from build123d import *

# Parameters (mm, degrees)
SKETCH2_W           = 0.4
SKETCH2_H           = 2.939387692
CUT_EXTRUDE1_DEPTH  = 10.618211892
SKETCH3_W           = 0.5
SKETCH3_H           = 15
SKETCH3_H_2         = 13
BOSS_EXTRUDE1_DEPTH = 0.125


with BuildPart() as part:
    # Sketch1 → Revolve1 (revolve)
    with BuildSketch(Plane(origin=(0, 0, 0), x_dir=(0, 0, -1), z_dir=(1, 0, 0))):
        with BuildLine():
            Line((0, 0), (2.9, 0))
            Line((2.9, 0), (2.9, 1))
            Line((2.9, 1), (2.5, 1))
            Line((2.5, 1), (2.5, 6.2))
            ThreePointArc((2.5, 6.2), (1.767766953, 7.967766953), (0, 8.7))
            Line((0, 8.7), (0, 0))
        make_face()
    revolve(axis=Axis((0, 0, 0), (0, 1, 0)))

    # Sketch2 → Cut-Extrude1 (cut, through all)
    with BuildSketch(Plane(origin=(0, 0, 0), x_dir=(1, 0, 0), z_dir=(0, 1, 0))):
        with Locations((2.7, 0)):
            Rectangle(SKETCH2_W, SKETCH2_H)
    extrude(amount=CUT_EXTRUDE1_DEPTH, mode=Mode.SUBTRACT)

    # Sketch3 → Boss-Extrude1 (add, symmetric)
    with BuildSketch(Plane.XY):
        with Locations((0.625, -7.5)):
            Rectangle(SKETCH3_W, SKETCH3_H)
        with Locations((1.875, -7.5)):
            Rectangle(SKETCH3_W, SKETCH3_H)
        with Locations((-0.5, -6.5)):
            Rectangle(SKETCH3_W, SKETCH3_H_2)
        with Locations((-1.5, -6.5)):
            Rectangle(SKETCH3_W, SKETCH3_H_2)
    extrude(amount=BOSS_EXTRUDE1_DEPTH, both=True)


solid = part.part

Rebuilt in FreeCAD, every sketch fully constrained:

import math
import FreeCAD as App
import Part
import Sketcher

V = App.Vector

doc = App.newDocument("Part")
body = doc.addObject("PartDesign::Body", "Body")

sketch1 = body.newObject("Sketcher::SketchObject", "Sketch")
sketch1.AttachmentSupport = (doc.getObject("YZ_Plane"), [""])
sketch1.MapMode = "FlatFace"
sketch1.addGeometry([
    Part.LineSegment(V(0, 0, 0), V(0, -2.9, 0)),
    Part.LineSegment(V(0, -2.9, 0), V(1, -2.9, 0)),
    Part.LineSegment(V(1, -2.9, 0), V(1, -2.5, 0)),
    Part.LineSegment(V(1, -2.5, 0), V(6.2, -2.5, 0)),
    Part.ArcOfCircle(Part.Circle(V(6.2, 0, 0), V(0, 0, 1), 2.5), math.radians(-90), math.radians(0)),
    Part.LineSegment(V(8.7, 0, 0), V(0, 0, 0)),
], False)
sketch1.addConstraint([
    Sketcher.Constraint("Coincident", 0, 2, 1, 1),
    Sketcher.Constraint("Coincident", 1, 2, 2, 1),
    Sketcher.Constraint("Coincident", 2, 2, 3, 1),
    Sketcher.Constraint("Tangent", 3, 2, 4, 1),
    Sketcher.Constraint("Coincident", 4, 2, 5, 1),
    Sketcher.Constraint("Coincident", 5, 2, 0, 1),
    Sketcher.Constraint("Vertical", 0),
    Sketcher.Constraint("Horizontal", 1),
    Sketcher.Constraint("Vertical", 2),
    Sketcher.Constraint("Horizontal", 3),
    Sketcher.Constraint("Horizontal", 5),
    Sketcher.Constraint("Coincident", 5, 2, -1, 1),
    Sketcher.Constraint("PointOnObject", 4, 3, -1),
    Sketcher.Constraint("Radius", 4, 2.5),
    Sketcher.Constraint("DistanceX", 1, 1, 1, 2, 1.0),
    Sketcher.Constraint("DistanceX", 3, 1, 3, 2, 5.2),
    Sketcher.Constraint("DistanceY", 0, 2, 0, 1, 2.9),
])
revolution = body.newObject("PartDesign::Revolution", "Revolution")
revolution.Profile = sketch1
revolution.ReferenceAxis = (sketch1, ["H_Axis"])
revolution.Angle = 360

sketch2 = body.newObject("Sketcher::SketchObject", "Sketch001")
sketch2.AttachmentSupport = (doc.getObject("XZ_Plane"), [""])
sketch2.MapMode = "FlatFace"
sketch2.addGeometry([
    Part.LineSegment(V(2.5, -1.47, 0), V(2.5, 1.47, 0)),
    Part.LineSegment(V(2.5, 1.47, 0), V(2.9, 1.47, 0)),
    Part.LineSegment(V(2.9, 1.47, 0), V(2.9, -1.47, 0)),
    Part.LineSegment(V(2.9, -1.47, 0), V(2.5, -1.47, 0)),
], False)
sketch2.addConstraint([
    Sketcher.Constraint("Coincident", 0, 2, 1, 1),
    Sketcher.Constraint("Coincident", 1, 2, 2, 1),
    Sketcher.Constraint("Coincident", 2, 2, 3, 1),
    Sketcher.Constraint("Coincident", 3, 2, 0, 1),
    Sketcher.Constraint("Vertical", 0),
    Sketcher.Constraint("Horizontal", 1),
    Sketcher.Constraint("Vertical", 2),
    Sketcher.Constraint("Horizontal", 3),
    Sketcher.Constraint("DistanceX", 1, 1, 1, 2, 0.4),
    Sketcher.Constraint("DistanceX", -1, 1, 0, 2, 2.5),
    Sketcher.Constraint("DistanceY", 0, 1, 0, 2, 2.939388),
    Sketcher.Constraint("DistanceY", -1, 1, 0, 2, 1.469694),
])
pocket1 = body.newObject("PartDesign::Pocket", "Pocket")
pocket1.Profile = sketch2
pocket1.Type = "ThroughAll"

sketch3 = body.newObject("Sketcher::SketchObject", "Sketch002")
sketch3.AttachmentSupport = (doc.getObject("XY_Plane"), [""])
sketch3.MapMode = "FlatFace"
sketch3.addGeometry([
    Part.LineSegment(V(0.4, 0, 0), V(0.4, -15, 0)),
    Part.LineSegment(V(0.4, -15, 0), V(0.9, -15, 0)),
    Part.LineSegment(V(0.9, -15, 0), V(0.9, 0, 0)),
    Part.LineSegment(V(0.9, 0, 0), V(0.4, 0, 0)),
    Part.LineSegment(V(1.6, 0, 0), V(1.6, -15, 0)),
    Part.LineSegment(V(1.6, -15, 0), V(2.1, -15, 0)),
    Part.LineSegment(V(2.1, -15, 0), V(2.1, 0, 0)),
    Part.LineSegment(V(2.1, 0, 0), V(1.6, 0, 0)),
    Part.LineSegment(V(-0.8, 0, 0), V(-0.8, -13, 0)),
    Part.LineSegment(V(-0.8, -13, 0), V(-0.2, -13, 0)),
    Part.LineSegment(V(-0.2, -13, 0), V(-0.2, 0, 0)),
    Part.LineSegment(V(-0.2, 0, 0), V(-0.8, 0, 0)),
    Part.LineSegment(V(-1.8, 0, 0), V(-1.8, -13, 0)),
    Part.LineSegment(V(-1.8, -13, 0), V(-1.2, -13, 0)),
    Part.LineSegment(V(-1.2, -13, 0), V(-1.2, 0, 0)),
    Part.LineSegment(V(-1.2, 0, 0), V(-1.8, 0, 0)),
], False)
sketch3.addConstraint([
    Sketcher.Constraint("Coincident", 0, 2, 1, 1),
    Sketcher.Constraint("Coincident", 1, 2, 2, 1),
    Sketcher.Constraint("Coincident", 2, 2, 3, 1),
    Sketcher.Constraint("Coincident", 3, 2, 0, 1),
    Sketcher.Constraint("Coincident", 4, 2, 5, 1),
    Sketcher.Constraint("Coincident", 5, 2, 6, 1),
    Sketcher.Constraint("Coincident", 6, 2, 7, 1),
    Sketcher.Constraint("Coincident", 7, 2, 4, 1),
    Sketcher.Constraint("Coincident", 8, 2, 9, 1),
    Sketcher.Constraint("Coincident", 9, 2, 10, 1),
    Sketcher.Constraint("Coincident", 10, 2, 11, 1),
    Sketcher.Constraint("Coincident", 11, 2, 8, 1),
    Sketcher.Constraint("Coincident", 12, 2, 13, 1),
    Sketcher.Constraint("Coincident", 13, 2, 14, 1),
    Sketcher.Constraint("Coincident", 14, 2, 15, 1),
    Sketcher.Constraint("Coincident", 15, 2, 12, 1),
    Sketcher.Constraint("Vertical", 0),
    Sketcher.Constraint("Horizontal", 1),
    Sketcher.Constraint("Vertical", 2),
    Sketcher.Constraint("Horizontal", 3),
    Sketcher.Constraint("Vertical", 4),
    Sketcher.Constraint("Horizontal", 5),
    Sketcher.Constraint("Vertical", 6),
    Sketcher.Constraint("Horizontal", 7),
    Sketcher.Constraint("Vertical", 8),
    Sketcher.Constraint("Horizontal", 9),
    Sketcher.Constraint("Vertical", 10),
    Sketcher.Constraint("Horizontal", 11),
    Sketcher.Constraint("Vertical", 12),
    Sketcher.Constraint("Horizontal", 13),
    Sketcher.Constraint("Vertical", 14),
    Sketcher.Constraint("Horizontal", 15),
    Sketcher.Constraint("PointOnObject", 2, 2, -1),
    Sketcher.Constraint("PointOnObject", 6, 2, -1),
    Sketcher.Constraint("PointOnObject", 10, 2, -1),
    Sketcher.Constraint("PointOnObject", 14, 2, -1),
    Sketcher.Constraint("Horizontal", 1, 2, 4, 2),
    Sketcher.Constraint("Horizontal", 9, 2, 12, 2),
    Sketcher.Constraint("Equal", 3, 5),
    Sketcher.Constraint("Equal", 7, 9),
    Sketcher.Constraint("Equal", 11, 13),
    Sketcher.Constraint("DistanceY", 0, 2, 0, 1, 15.0),
    Sketcher.Constraint("DistanceY", 8, 2, 8, 1, 13.0),
    Sketcher.Constraint("DistanceX", 1, 1, 1, 2, 0.5),
    Sketcher.Constraint("DistanceX", 12, 2, 8, 2, 1.0),
    Sketcher.Constraint("DistanceX", 8, 2, -1, 1, 0.75),
    Sketcher.Constraint("DistanceX", 1, 2, 4, 2, 0.75),
    Sketcher.Constraint("DistanceX", -1, 1, 0, 2, 0.375),
])
pad1 = body.newObject("PartDesign::Pad", "Pad")
pad1.Profile = sketch3
pad1.Length = 0.25
pad1.Midplane = True

doc.recompute()
